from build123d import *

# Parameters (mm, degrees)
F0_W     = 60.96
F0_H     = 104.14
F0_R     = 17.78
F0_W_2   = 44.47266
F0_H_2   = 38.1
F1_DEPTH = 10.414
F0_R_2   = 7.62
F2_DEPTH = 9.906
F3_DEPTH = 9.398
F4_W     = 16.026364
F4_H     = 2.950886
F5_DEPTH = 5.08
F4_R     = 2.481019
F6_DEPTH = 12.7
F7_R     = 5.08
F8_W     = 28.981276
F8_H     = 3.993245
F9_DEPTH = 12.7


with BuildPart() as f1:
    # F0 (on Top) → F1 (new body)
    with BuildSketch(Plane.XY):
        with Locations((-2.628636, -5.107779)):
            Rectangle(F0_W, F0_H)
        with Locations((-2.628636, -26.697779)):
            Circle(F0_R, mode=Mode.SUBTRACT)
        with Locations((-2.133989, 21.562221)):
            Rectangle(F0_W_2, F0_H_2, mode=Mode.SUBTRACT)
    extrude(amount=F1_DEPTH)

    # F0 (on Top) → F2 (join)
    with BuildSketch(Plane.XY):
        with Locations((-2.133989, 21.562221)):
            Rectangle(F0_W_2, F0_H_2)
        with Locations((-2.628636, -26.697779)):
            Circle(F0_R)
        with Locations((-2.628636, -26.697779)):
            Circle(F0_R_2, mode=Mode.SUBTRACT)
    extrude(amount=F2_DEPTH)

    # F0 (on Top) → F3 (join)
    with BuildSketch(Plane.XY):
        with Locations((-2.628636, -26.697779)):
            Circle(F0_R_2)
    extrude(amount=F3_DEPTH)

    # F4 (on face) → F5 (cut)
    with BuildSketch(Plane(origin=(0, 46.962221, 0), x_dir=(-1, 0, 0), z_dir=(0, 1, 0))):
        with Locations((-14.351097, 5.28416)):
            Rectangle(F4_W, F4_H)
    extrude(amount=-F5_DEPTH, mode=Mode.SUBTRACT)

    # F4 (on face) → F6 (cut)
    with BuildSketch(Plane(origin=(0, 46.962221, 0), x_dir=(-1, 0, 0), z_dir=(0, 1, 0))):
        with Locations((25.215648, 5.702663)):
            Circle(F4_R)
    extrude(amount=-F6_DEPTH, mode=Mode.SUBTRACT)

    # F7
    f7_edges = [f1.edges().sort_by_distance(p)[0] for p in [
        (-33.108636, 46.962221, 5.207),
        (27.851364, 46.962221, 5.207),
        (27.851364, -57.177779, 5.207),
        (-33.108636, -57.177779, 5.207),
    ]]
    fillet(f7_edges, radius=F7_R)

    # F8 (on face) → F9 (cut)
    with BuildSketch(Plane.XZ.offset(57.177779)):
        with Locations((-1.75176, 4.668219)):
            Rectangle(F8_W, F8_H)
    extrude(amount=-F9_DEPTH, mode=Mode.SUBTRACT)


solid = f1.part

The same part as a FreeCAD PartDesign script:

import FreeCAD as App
import Part
import Sketcher

V = App.Vector
Q = App.Units.Quantity


def edges_at(feature, points):
    """Names of the edges that pass closest to the given points."""
    edges = feature.Shape.Edges
    near = lambda p: min(range(len(edges)), key=lambda i: edges[i].distToShape(Part.Vertex(*p))[0])
    return sorted({f"Edge{near(p) + 1}" for p in points})

doc = App.newDocument("Part")
params = doc.addObject("Spreadsheet::Sheet", "Params")
for row, (alias, value) in enumerate([
    ("sketch1_diameter", "1.4 in"),
    ("sketch1_width", "2.4 in"),
    ("sketch1_height", "4.1 in"),
    ("sketch1_height2", "1.5 in"),
    ("pad1_length", "0.41 in"),
    ("sketch2_diameter", "1.4 in"),
    ("sketch2_diameter2", "0.6 in"),
    ("sketch2_height", "1.5 in"),
    ("pad2_length", "0.39 in"),
    ("sketch3_diameter", "0.6 in"),
    ("pad3_length", "0.37 in"),
    ("pocket1_length", "0.2 in"),
    ("pocket2_length", "0.5 in"),
    ("fillet_radius", "0.2 in"),
    ("pocket3_length", "0.5 in"),
], start=1):
    params.set(f"A{row}", alias)
    params.set(f"B{row}", "=" + value)
    params.setAlias(f"B{row}", alias)

body = doc.addObject("PartDesign::Body", "Body")

# Sketch on XY plane
sketch1 = body.newObject("Sketcher::SketchObject", "Sketch")
sketch1.AttachmentSupport = (doc.getObject("XY_Plane"), [""])
sketch1.MapMode = "FlatFace"
sketch1.addGeometry([
    Part.LineSegment(V(-33, 47, 0), V(-33, -57, 0)),  # 0
    Part.LineSegment(V(-33, -57, 0), V(28, -57, 0)),  # 1
    Part.LineSegment(V(28, -57, 0), V(28, 47, 0)),  # 2
    Part.LineSegment(V(28, 47, 0), V(-33, 47, 0)),  # 3
    Part.Circle(V(-3, -27, 0), V(0, 0, 1), 18),  # 4
    Part.LineSegment(V(20, 3, 0), V(-24, 3, 0)),  # 5
    Part.LineSegment(V(-24, 3, 0), V(-24, 41, 0)),  # 6
    Part.LineSegment(V(-24, 41, 0), V(20, 41, 0)),  # 7
    Part.LineSegment(V(20, 41, 0), V(20, 3, 0)),  # 8
], False)
sketch1.addConstraint([
    Sketcher.Constraint("Coincident", 0, 2, 1, 1),
    Sketcher.Constraint("Coincident", 1, 2, 2, 1),
    Sketcher.Constraint("Coincident", 2, 2, 3, 1),
    Sketcher.Constraint("Coincident", 3, 2, 0, 1),
    Sketcher.Constraint("Coincident", 5, 2, 6, 1),
    Sketcher.Constraint("Coincident", 6, 2, 7, 1),
    Sketcher.Constraint("Coincident", 7, 2, 8, 1),
    Sketcher.Constraint("Coincident", 8, 2, 5, 1),
    Sketcher.Constraint("Vertical", 0),
    Sketcher.Constraint("Horizontal", 1),
    Sketcher.Constraint("Vertical", 2),
    Sketcher.Constraint("Horizontal", 3),
    Sketcher.Constraint("Horizontal", 5),
    Sketcher.Constraint("Vertical", 6),
    Sketcher.Constraint("Horizontal", 7),
    Sketcher.Constraint("Vertical", 8),
    Sketcher.Constraint("Diameter", 4, Q("1.4 in")),
    Sketcher.Constraint("DistanceX", 1, 1, 1, 2, Q("2.4 in")),
    Sketcher.Constraint("DistanceY", 0, 2, 0, 1, Q("4.1 in")),
    Sketcher.Constraint("DistanceY", 6, 1, 6, 2, Q("1.5 in")),
    Sketcher.Constraint("DistanceX", 0, 2, 4, 3, Q("1.2 in")),
    Sketcher.Constraint("DistanceY", 0, 2, 4, 3, Q("1.2 in")),
    Sketcher.Constraint("DistanceY", 4, 3, 5, 2, Q("1.15 in")),
    Sketcher.Constraint("DistanceX", 5, 2, 5, 1, Q("44.47266 mm")),
    Sketcher.Constraint("DistanceY", 4, 3, -1, 1, Q("26.697779 mm")),
    Sketcher.Constraint("DistanceX", 5, 2, -1, 1, Q("24.370319 mm")),
    Sketcher.Constraint("DistanceX", 4, 3, -1, 1, Q("2.628636 mm")),
])
sketch1.setExpression("Constraints[16]", "Params.sketch1_diameter")
sketch1.setExpression("Constraints[17]", "Params.sketch1_width")
sketch1.setExpression("Constraints[18]", "Params.sketch1_height")
sketch1.setExpression("Constraints[19]", "Params.sketch1_height2")
pad1 = body.newObject("PartDesign::Pad", "Pad")
pad1.Profile = sketch1
pad1.setExpression("Length", "Params.pad1_length")

# Sketch on XY plane
sketch2 = body.newObject("Sketcher::SketchObject", "Sketch001")
sketch2.AttachmentSupport = (doc.getObject("XY_Plane"), [""])
sketch2.MapMode = "FlatFace"
sketch2.addGeometry([
    Part.LineSegment(V(-24, 41, 0), V(-24, 3, 0)),  # 0
    Part.LineSegment(V(-24, 3, 0), V(20, 3, 0)),  # 1
    Part.LineSegment(V(20, 3, 0), V(20, 41, 0)),  # 2
    Part.LineSegment(V(20, 41, 0), V(-24, 41, 0)),  # 3
    Part.Circle(V(-3, -27, 0), V(0, 0, 1), 18),  # 4
    Part.Circle(V(-3, -27, 0), V(0, 0, 1), 8),  # 5
], False)
sketch2.addConstraint([
    Sketcher.Constraint("Coincident", 0, 2, 1, 1),
    Sketcher.Constraint("Coincident", 1, 2, 2, 1),
    Sketcher.Constraint("Coincident", 2, 2, 3, 1),
    Sketcher.Constraint("Coincident", 3, 2, 0, 1),
    Sketcher.Constraint("Vertical", 0),
    Sketcher.Constraint("Horizontal", 1),
    Sketcher.Constraint("Vertical", 2),
    Sketcher.Constraint("Horizontal", 3),
    Sketcher.Constraint("Coincident", 5, 3, 4, 3),
    Sketcher.Constraint("Diameter", 4, Q("1.4 in")),
    Sketcher.Constraint("Diameter", 5, Q("0.6 in")),
    Sketcher.Constraint("DistanceY", 0, 2, 0, 1, Q("1.5 in")),
    Sketcher.Constraint("DistanceY", 4, 3, 0, 2, Q("1.15 in")),
    Sketcher.Constraint("DistanceX", 1, 1, 1, 2, Q("44.47266 mm")),
    Sketcher.Constraint("DistanceY", 4, 3, -1, 1, Q("26.697779 mm")),
    Sketcher.Constraint("DistanceX", 0, 2, -1, 1, Q("24.370319 mm")),
    Sketcher.Constraint("DistanceX", 4, 3, -1, 1, Q("2.628636 mm")),
])
sketch2.setExpression("Constraints[9]", "Params.sketch2_diameter")
sketch2.setExpression("Constraints[10]", "Params.sketch2_diameter2")
sketch2.setExpression("Constraints[11]", "Params.sketch2_height")
pad2 = body.newObject("PartDesign::Pad", "Pad001")
pad2.Profile = sketch2
pad2.setExpression("Length", "Params.pad2_length")

# Sketch on XY plane
sketch3 = body.newObject("Sketcher::SketchObject", "Sketch002")
sketch3.AttachmentSupport = (doc.getObject("XY_Plane"), [""])
sketch3.MapMode = "FlatFace"
sketch3.addGeometry(Part.Circle(V(-3, -27, 0), V(0, 0, 1), 8), False)
sketch3.addConstraint([
    Sketcher.Constraint("Diameter", 0, Q("0.6 in")),
    Sketcher.Constraint("DistanceY", 0, 3, -1, 1, Q("26.697779 mm")),
    Sketcher.Constraint("DistanceX", 0, 3, -1, 1, Q("2.628636 mm")),
])
sketch3.setExpression("Constraints[0]", "Params.sketch3_diameter")
pad3 = body.newObject("PartDesign::Pad", "Pad002")
pad3.Profile = sketch3
pad3.setExpression("Length", "Params.pad3_length")

# Sketch on XZ plane
sketch4 = body.newObject("Sketcher::SketchObject", "Sketch003")
sketch4.AttachmentSupport = (doc.getObject("XZ_Plane"), [""])
sketch4.MapMode = "FlatFace"
sketch4.AttachmentOffset = App.Placement(V(0, 0, -46.962221), App.Rotation())
sketch4.addGeometry([
    Part.LineSegment(V(22.4, 6.8, 0), V(22.4, 3.8, 0)),
    Part.LineSegment(V(22.4, 3.8, 0), V(6.3, 3.8, 0)),
    Part.LineSegment(V(6.3, 3.8, 0), V(6.3, 6.8, 0)),
    Part.LineSegment(V(6.3, 6.8, 0), V(22.4, 6.8, 0)),
], False)
sketch4.addConstraint([
    Sketcher.Constraint("Coincident", 0, 2, 1, 1),
    Sketcher.Constraint("Coincident", 1, 2, 2, 1),
    Sketcher.Constraint("Coincident", 2, 2, 3, 1),
    Sketcher.Constraint("Coincident", 3, 2, 0, 1),
    Sketcher.Constraint("Vertical", 0),
    Sketcher.Constraint("Horizontal", 1),
    Sketcher.Constraint("Vertical", 2),
    Sketcher.Constraint("Horizontal", 3),
    Sketcher.Constraint("DistanceX", 1, 2, 1, 1, Q("16.026364 mm")),
    Sketcher.Constraint("DistanceY", 0, 2, 0, 1, Q("2.950886 mm")),
    Sketcher.Constraint("DistanceX", -1, 1, 0, 2, Q("22.364279 mm")),
    Sketcher.Constraint("DistanceY", -1, 1, 0, 2, Q("3.808717 mm")),
])
pocket1 = body.newObject("PartDesign::Pocket", "Pocket")
pocket1.Profile = sketch4
pocket1.setExpression("Length", "Params.pocket1_length")
pocket1.Reversed = True

# Sketch on XZ plane
sketch5 = body.newObject("Sketcher::SketchObject", "Sketch004")
sketch5.AttachmentSupport = (doc.getObject("XZ_Plane"), [""])
sketch5.MapMode = "FlatFace"
sketch5.AttachmentOffset = App.Placement(V(0, 0, -46.962221), App.Rotation())
sketch5.addGeometry(Part.Circle(V(-25.2, 5.7, 0), V(0, 0, 1), 2.5), False)
sketch5.addConstraint([
    Sketcher.Constraint("Diameter", 0, Q("4.962038 mm")),
    Sketcher.Constraint("DistanceX", 0, 3, -1, 1, Q("25.215648 mm")),
    Sketcher.Constraint("DistanceY", -1, 1, 0, 3, Q("5.702663 mm")),
])
pocket2 = body.newObject("PartDesign::Pocket", "Pocket001")
pocket2.Profile = sketch5
pocket2.setExpression("Length", "Params.pocket2_length")
pocket2.Reversed = True
doc.recompute()

fillet = body.newObject("PartDesign::Fillet", "Fillet")
fillet.Base = (pocket2, edges_at(pocket2, [
    (-33.109, 46.962, 5.207),
    (27.851, 46.962, 5.207),
    (27.851, -57.178, 5.207),
    (-33.109, -57.178, 5.207),
]))
fillet.setExpression("Radius", "Params.fillet_radius")

# Sketch on XZ plane
sketch6 = body.newObject("Sketcher::SketchObject", "Sketch005")
sketch6.AttachmentSupport = (doc.getObject("XZ_Plane"), [""])
sketch6.MapMode = "FlatFace"
sketch6.AttachmentOffset = App.Placement(V(0, 0, 57.177779), App.Rotation())
sketch6.addGeometry([
    Part.LineSegment(V(-16.2, 6.7, 0), V(-16.2, 2.7, 0)),
    Part.LineSegment(V(-16.2, 2.7, 0), V(12.7, 2.7, 0)),
    Part.LineSegment(V(12.7, 2.7, 0), V(12.7, 6.7, 0)),
    Part.LineSegment(V(12.7, 6.7, 0), V(-16.2, 6.7, 0)),
], False)
sketch6.addConstraint([
    Sketcher.Constraint("Coincident", 0, 2, 1, 1),
    Sketcher.Constraint("Coincident", 1, 2, 2, 1),
    Sketcher.Constraint("Coincident", 2, 2, 3, 1),
    Sketcher.Constraint("Coincident", 3, 2, 0, 1),
    Sketcher.Constraint("Vertical", 0),
    Sketcher.Constraint("Horizontal", 1),
    Sketcher.Constraint("Vertical", 2),
    Sketcher.Constraint("Horizontal", 3),
    Sketcher.Constraint("DistanceX", 0, 2, -1, 1, Q("16.242398 mm")),
    Sketcher.Constraint("DistanceX", 1, 1, 1, 2, Q("28.981276 mm")),
    Sketcher.Constraint("DistanceY", 0, 2, 0, 1, Q("3.993245 mm")),
    Sketcher.Constraint("DistanceY", -1, 1, 2, 2, Q("6.664841 mm")),
])
pocket3 = body.newObject("PartDesign::Pocket", "Pocket002")
pocket3.Profile = sketch6
pocket3.setExpression("Length", "Params.pocket3_length")

doc.recompute()
